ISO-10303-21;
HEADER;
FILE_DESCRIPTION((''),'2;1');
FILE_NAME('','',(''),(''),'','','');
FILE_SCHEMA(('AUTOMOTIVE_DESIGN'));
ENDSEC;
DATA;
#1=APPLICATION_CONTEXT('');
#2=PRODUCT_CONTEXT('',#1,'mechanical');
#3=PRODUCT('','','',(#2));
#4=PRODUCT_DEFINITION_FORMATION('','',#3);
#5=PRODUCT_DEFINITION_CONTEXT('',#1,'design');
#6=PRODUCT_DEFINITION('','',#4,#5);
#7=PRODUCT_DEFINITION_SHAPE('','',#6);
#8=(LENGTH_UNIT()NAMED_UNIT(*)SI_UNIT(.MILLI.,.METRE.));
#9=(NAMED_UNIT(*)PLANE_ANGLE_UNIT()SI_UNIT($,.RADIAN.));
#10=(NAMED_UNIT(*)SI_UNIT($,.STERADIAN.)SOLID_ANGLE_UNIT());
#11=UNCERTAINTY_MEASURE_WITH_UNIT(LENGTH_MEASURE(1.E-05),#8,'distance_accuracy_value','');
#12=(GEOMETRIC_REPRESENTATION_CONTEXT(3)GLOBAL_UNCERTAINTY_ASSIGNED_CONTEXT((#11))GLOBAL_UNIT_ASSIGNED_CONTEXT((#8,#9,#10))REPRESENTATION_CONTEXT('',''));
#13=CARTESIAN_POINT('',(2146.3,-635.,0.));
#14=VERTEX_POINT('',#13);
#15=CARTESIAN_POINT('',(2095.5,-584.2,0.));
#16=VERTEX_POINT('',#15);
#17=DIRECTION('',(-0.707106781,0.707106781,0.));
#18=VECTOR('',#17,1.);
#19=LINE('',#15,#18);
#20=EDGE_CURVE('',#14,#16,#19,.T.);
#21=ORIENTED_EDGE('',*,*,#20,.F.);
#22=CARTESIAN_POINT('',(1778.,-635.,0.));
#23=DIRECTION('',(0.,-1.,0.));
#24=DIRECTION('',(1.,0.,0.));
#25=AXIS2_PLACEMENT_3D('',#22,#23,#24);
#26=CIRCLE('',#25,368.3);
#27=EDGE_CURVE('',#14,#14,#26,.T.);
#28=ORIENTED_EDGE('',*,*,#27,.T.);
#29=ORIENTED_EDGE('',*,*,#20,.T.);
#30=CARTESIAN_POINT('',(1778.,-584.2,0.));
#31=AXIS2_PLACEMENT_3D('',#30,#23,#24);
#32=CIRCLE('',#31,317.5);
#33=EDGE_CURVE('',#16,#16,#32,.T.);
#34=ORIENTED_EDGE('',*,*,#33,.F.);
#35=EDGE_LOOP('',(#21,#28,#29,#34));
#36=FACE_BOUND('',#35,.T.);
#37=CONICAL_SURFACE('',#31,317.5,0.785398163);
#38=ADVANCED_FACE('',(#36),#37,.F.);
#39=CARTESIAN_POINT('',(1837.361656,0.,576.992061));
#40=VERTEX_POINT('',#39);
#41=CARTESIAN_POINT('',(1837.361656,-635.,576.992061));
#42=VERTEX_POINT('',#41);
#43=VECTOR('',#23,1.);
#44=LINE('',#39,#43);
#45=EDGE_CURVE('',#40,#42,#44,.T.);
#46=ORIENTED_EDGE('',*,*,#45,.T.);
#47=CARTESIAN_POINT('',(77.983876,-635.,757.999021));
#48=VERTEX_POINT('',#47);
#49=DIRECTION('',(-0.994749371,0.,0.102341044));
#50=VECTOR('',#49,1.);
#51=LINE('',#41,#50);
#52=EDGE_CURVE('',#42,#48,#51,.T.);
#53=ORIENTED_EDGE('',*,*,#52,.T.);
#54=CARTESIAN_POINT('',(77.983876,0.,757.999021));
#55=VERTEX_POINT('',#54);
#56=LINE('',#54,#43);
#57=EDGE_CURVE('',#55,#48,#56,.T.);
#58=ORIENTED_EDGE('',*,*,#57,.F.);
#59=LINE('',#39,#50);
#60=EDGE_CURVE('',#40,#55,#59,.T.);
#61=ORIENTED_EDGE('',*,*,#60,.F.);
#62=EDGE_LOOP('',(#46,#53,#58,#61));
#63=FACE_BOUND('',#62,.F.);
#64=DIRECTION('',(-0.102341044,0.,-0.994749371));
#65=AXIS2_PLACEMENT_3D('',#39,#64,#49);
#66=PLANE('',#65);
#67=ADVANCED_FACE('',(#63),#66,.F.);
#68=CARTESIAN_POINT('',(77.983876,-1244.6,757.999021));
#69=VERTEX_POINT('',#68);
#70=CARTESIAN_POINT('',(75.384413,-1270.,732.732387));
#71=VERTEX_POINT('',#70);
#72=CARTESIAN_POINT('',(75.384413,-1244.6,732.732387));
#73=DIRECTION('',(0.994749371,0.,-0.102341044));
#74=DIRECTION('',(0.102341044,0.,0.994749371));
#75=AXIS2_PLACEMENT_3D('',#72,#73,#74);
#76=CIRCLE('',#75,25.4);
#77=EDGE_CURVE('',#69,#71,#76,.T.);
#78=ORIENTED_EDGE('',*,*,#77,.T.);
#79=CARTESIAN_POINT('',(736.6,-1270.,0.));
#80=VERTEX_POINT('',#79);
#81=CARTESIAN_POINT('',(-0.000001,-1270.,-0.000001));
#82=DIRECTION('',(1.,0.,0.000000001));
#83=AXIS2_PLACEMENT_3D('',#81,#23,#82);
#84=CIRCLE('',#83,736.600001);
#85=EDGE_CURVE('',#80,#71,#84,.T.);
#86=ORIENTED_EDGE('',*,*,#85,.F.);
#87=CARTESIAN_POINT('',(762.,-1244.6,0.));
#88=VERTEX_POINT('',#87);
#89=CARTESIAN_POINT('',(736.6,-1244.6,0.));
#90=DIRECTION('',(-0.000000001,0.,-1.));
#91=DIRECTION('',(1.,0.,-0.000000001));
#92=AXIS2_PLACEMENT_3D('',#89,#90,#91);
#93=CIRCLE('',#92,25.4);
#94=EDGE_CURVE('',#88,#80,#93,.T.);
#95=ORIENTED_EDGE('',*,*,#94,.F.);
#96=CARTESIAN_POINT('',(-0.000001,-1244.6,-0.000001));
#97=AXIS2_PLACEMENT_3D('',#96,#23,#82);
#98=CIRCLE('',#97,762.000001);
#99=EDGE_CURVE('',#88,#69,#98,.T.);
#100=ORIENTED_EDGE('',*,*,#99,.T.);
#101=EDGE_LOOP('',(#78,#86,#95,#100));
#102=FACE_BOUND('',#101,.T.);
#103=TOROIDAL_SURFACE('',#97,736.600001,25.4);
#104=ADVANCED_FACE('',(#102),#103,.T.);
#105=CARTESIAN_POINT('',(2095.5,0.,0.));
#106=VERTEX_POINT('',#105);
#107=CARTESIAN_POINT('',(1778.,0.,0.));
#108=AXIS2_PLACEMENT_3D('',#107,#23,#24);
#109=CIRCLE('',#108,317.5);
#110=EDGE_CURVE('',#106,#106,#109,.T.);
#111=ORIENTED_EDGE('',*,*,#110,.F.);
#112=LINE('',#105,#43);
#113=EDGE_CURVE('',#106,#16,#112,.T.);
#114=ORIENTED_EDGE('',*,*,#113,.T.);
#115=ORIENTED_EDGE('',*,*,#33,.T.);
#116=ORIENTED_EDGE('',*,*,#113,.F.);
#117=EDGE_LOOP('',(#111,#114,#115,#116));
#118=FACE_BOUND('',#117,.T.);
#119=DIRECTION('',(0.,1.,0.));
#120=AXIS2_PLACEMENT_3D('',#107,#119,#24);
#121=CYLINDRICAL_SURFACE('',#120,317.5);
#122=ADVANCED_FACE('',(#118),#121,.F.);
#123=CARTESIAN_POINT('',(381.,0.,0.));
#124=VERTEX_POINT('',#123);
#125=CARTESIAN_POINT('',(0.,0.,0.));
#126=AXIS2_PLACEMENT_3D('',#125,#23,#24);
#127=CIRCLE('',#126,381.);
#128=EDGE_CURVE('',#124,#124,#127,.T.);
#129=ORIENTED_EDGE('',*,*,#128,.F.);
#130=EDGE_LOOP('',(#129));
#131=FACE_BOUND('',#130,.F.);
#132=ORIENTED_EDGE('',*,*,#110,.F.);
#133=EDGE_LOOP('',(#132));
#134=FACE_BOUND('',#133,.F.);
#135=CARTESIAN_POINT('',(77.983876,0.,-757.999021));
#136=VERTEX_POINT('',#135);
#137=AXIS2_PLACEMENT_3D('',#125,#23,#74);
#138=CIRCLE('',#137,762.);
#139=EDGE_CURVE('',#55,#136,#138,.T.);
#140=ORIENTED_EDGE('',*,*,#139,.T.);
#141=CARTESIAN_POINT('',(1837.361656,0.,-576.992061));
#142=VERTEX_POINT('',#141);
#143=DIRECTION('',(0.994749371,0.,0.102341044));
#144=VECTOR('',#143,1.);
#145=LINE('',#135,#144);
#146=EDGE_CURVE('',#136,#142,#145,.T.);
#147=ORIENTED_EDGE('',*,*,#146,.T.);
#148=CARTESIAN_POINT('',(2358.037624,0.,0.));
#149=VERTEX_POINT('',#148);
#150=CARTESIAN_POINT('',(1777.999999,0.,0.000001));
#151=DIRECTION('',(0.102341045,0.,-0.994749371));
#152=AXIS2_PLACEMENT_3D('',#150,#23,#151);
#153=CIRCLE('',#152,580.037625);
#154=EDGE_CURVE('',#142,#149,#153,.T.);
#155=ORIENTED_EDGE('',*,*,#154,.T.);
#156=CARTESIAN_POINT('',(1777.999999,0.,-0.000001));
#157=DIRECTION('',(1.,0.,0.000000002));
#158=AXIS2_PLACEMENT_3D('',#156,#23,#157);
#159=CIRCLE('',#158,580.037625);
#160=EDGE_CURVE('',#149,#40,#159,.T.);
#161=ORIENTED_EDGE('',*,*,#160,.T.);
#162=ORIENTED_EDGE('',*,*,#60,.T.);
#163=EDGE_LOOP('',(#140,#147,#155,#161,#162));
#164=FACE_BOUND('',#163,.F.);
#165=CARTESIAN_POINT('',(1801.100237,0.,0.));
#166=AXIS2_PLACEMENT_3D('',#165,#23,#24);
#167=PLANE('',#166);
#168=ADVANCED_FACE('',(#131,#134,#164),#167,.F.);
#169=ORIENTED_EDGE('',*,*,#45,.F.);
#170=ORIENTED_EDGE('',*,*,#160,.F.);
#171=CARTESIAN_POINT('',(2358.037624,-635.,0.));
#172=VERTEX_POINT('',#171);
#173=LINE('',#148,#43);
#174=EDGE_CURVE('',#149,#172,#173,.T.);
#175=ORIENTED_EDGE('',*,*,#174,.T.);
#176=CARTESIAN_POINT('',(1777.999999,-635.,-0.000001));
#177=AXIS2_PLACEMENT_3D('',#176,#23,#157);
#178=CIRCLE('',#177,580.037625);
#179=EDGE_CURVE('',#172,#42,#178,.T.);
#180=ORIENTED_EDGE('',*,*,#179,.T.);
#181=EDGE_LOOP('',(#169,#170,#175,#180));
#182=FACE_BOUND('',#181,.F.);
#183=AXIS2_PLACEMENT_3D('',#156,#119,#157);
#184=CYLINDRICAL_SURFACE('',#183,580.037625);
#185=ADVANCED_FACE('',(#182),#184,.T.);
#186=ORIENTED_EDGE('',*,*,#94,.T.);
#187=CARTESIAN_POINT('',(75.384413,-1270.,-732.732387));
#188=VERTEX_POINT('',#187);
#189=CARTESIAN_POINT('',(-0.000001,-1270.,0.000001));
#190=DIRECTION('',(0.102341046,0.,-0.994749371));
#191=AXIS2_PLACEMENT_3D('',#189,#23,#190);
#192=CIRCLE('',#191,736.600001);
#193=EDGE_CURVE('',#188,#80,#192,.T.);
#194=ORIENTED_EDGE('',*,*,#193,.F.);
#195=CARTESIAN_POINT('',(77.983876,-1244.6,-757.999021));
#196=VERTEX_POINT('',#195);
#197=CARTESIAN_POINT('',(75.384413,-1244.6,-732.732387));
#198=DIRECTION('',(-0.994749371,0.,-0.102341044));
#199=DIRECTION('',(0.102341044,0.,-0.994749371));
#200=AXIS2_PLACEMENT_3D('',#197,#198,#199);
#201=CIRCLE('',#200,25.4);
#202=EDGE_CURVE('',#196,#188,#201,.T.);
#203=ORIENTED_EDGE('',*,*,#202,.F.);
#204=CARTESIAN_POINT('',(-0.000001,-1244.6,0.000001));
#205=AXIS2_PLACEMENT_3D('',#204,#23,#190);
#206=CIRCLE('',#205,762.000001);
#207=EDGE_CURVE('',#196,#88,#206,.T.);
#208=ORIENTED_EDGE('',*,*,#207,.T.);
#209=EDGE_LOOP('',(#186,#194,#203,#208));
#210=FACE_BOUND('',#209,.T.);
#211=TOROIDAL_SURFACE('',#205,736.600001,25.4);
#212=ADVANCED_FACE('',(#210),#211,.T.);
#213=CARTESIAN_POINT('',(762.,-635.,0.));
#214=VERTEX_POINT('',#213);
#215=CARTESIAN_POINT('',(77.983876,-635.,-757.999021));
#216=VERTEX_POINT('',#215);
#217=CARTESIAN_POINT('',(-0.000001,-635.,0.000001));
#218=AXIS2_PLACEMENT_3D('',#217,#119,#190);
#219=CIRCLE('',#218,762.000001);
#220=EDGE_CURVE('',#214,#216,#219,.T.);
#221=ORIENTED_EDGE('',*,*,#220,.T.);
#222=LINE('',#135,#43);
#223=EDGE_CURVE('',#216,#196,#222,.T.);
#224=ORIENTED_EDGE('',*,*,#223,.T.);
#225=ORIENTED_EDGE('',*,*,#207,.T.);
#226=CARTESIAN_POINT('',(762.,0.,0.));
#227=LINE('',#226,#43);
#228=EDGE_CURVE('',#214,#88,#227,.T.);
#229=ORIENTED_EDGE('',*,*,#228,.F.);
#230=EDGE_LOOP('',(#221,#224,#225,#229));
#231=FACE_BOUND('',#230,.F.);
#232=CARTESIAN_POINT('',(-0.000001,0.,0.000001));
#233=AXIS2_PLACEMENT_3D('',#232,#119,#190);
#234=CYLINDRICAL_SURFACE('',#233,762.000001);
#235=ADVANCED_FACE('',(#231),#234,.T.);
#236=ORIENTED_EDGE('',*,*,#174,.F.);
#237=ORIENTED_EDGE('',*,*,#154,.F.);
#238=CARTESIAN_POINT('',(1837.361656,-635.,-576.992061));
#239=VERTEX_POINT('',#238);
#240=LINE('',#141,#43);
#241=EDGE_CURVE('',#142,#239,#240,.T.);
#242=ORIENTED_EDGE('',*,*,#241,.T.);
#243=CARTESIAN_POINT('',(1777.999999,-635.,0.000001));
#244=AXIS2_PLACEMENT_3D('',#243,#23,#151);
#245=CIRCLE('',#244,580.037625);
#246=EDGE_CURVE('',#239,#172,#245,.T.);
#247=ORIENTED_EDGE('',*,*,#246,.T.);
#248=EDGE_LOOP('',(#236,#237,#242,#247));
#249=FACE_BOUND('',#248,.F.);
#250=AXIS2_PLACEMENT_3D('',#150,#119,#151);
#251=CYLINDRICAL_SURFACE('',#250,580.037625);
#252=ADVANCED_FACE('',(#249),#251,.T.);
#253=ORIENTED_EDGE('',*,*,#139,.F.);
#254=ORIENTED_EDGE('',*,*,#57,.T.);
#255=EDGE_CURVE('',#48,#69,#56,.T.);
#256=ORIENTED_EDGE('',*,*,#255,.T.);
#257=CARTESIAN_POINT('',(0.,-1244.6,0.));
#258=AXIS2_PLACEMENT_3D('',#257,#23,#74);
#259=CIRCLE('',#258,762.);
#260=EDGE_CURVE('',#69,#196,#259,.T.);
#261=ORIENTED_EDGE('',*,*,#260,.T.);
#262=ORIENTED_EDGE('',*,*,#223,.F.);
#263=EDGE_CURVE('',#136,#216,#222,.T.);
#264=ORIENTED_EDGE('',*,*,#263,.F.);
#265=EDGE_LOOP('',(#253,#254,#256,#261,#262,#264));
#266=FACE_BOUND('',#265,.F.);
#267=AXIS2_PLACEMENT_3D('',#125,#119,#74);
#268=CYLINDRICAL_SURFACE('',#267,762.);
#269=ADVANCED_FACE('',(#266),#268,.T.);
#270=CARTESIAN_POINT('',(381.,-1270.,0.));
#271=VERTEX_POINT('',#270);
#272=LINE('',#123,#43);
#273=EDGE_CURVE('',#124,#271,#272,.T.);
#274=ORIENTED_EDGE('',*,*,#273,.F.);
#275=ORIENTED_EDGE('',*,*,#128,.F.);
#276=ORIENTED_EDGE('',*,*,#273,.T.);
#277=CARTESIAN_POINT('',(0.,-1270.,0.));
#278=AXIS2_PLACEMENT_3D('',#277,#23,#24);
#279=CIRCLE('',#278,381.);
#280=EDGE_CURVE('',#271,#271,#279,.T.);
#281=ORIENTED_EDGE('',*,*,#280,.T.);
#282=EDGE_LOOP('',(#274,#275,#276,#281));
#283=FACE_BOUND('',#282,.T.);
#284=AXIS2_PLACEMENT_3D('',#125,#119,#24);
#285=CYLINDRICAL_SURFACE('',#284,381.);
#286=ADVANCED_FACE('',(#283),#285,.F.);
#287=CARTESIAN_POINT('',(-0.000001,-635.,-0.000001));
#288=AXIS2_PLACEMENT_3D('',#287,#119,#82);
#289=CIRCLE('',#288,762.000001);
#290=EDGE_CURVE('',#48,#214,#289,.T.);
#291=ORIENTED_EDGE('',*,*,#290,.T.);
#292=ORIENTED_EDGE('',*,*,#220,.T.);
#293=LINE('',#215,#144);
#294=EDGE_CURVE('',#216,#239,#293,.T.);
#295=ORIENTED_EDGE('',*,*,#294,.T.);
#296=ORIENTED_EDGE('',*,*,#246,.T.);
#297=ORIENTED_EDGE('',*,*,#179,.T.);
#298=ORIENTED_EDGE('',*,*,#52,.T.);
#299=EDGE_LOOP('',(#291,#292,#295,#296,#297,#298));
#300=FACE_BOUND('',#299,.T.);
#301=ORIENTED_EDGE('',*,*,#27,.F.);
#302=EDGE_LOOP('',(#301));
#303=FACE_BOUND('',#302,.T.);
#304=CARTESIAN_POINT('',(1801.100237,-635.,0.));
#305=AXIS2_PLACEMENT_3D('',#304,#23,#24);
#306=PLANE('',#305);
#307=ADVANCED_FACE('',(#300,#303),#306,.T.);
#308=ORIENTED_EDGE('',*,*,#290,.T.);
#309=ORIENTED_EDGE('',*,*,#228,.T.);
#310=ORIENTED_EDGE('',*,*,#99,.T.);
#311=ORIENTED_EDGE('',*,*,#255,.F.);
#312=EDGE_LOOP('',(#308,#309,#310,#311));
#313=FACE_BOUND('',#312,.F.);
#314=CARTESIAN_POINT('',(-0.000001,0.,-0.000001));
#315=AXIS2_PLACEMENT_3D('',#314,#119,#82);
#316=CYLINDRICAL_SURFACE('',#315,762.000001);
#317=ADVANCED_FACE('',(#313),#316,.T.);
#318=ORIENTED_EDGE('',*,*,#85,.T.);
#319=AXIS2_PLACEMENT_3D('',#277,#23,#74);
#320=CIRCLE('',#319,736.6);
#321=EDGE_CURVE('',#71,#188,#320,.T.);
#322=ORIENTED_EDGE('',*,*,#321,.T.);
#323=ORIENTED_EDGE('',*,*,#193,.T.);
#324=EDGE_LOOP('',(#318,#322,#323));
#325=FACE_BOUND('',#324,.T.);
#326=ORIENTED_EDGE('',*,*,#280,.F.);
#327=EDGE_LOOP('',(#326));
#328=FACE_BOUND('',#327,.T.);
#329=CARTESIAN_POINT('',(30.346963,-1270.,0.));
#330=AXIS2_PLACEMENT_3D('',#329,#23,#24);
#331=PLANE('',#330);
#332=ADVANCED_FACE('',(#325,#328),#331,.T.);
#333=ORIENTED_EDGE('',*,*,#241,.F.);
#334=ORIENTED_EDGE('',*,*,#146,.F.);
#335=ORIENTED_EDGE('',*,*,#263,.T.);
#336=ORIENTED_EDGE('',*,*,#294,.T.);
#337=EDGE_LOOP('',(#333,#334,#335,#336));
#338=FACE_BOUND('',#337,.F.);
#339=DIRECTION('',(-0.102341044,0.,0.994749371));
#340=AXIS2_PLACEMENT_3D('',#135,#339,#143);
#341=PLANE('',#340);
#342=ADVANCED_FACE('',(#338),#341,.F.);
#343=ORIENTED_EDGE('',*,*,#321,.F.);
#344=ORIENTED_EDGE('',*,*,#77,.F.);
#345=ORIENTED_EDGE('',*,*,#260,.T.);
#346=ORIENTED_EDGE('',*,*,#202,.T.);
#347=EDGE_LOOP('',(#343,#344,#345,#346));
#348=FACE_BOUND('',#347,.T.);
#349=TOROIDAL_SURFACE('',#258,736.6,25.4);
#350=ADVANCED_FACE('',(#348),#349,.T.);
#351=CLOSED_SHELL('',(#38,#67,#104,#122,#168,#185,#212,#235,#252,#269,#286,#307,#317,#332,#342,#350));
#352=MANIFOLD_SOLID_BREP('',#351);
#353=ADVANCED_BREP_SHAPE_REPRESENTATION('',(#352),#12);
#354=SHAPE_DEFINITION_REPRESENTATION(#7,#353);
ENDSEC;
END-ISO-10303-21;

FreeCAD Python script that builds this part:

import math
import FreeCAD as App
import Part
import Sketcher
from FreeCAD import Vector
Q = App.Units.Quantity


def edges_at(feature, points):
    """Names of the edges that pass closest to the given points."""
    edges = feature.Shape.Edges
    near = lambda p: min(range(len(edges)), key=lambda i: edges[i].distToShape(Part.Vertex(*p))[0])
    return sorted({f"Edge{near(p) + 1}" for p in points})

doc = App.newDocument("Part")
body = doc.addObject("PartDesign::Body", "Body")

# Sketch on XZ plane
sketch1 = body.newObject("Sketcher::SketchObject", "Sketch")
sketch1.AttachmentSupport = (doc.getObject("XZ_Plane"), [""])
sketch1.MapMode = "FlatFace"
sketch1.addGeometry(Part.ArcOfCircle(Part.Circle(Vector(1777.999999, -0.000001, 0), Vector(0, 0, 1), 580.037625), math.radians(0), math.radians(84.126006)), False)
sketch1.addGeometry(Part.LineSegment(Vector(1837.361656, 576.992061, 0), Vector(77.983876, 757.999021, 0)), False)
sketch1.addGeometry(Part.ArcOfCircle(Part.Circle(Vector(0, 0, 0), Vector(0, 0, 1), 762), math.radians(84.126006), math.radians(275.873994)), False)
sketch1.addGeometry(Part.LineSegment(Vector(77.983876, -757.999021, 0), Vector(1837.361656, -576.992061, 0)), False)
sketch1.addGeometry(Part.ArcOfCircle(Part.Circle(Vector(1777.999999, 0.000001, 0), Vector(0, 0, 1), 580.037625), math.radians(-84.126006), math.radians(0)), False)
sketch1.addGeometry(Part.Circle(Vector(1778, 0, 0), Vector(0, 0, 1), 317.5), False)
sketch1.addGeometry(Part.Circle(Vector(0, 0, 0), Vector(0, 0, 1), 381), False)
sketch1.addConstraint(Sketcher.Constraint("Tangent", 0, 2, 1, 1))
sketch1.addConstraint(Sketcher.Constraint("Coincident", 1, 2, 2, 1))
sketch1.addConstraint(Sketcher.Constraint("Coincident", 2, 2, 3, 1))
sketch1.addConstraint(Sketcher.Constraint("Tangent", 3, 2, 4, 1))
sketch1.addConstraint(Sketcher.Constraint("Coincident", 4, 2, 0, 1))
sketch1.addConstraint(Sketcher.Constraint("Coincident", 2, 3, -1, 1))
sketch1.addConstraint(Sketcher.Constraint("Coincident", 6, 3, -1, 1))
sketch1.addConstraint(Sketcher.Constraint("Coincident", 4, 3, 0, 3))
sketch1.addConstraint(Sketcher.Constraint("Coincident", 5, 3, 0, 3))
sketch1.addConstraint(Sketcher.Constraint("PointOnObject", 0, 3, -1))
sketch1.addConstraint(Sketcher.Constraint("PointOnObject", 4, 2, -1))
sketch1.addConstraint(Sketcher.Constraint("Equal", 1, 3))
sketch1.addConstraint(Sketcher.Constraint("Diameter", 5, Q("25 in")))
sketch1.addConstraint(Sketcher.Constraint("Diameter", 6, Q("30 in")))
sketch1.addConstraint(Sketcher.Constraint("Radius", 2, Q("30 in")))
sketch1.addConstraint(Sketcher.Constraint("DistanceX", -1, 1, 0, 3, Q("70 in")))
sketch1.addConstraint(Sketcher.Constraint("Radius", 0, Q("580.037625 mm")))
sketch1.addConstraint(Sketcher.Constraint("Distance", 1, Q("1768.664381 mm")))
pad1 = body.newObject("PartDesign::Pad", "Pad")
pad1.Profile = sketch1
pad1.Length = Q("25 in")

# Sketch on XZ plane
sketch2 = body.newObject("Sketcher::SketchObject", "Sketch001")
sketch2.AttachmentSupport = (doc.getObject("XZ_Plane"), [""])
sketch2.MapMode = "FlatFace"
sketch2.addGeometry(Part.ArcOfCircle(Part.Circle(Vector(-0.000001, 0.000001, 0), Vector(0, 0, 1), 762.000001), math.radians(-84.126006), math.radians(0)), False)
sketch2.addGeometry(Part.ArcOfCircle(Part.Circle(Vector(-0.000001, -0.000001, 0), Vector(0, 0, 1), 762.000001), math.radians(0), math.radians(84.126006)), False)
sketch2.addGeometry(Part.ArcOfCircle(Part.Circle(Vector(0, 0, 0), Vector(0, 0, 1), 762), math.radians(84.126006), math.radians(275.873994)), False)
sketch2.addGeometry(Part.Circle(Vector(0, 0, 0), Vector(0, 0, 1), 381), False)
sketch2.addConstraint(Sketcher.Constraint("Coincident", 0, 2, 1, 1))
sketch2.addConstraint(Sketcher.Constraint("Coincident", 1, 2, 2, 1))
sketch2.addConstraint(Sketcher.Constraint("Coincident", 2, 2, 0, 1))
sketch2.addConstraint(Sketcher.Constraint("Coincident", 0, 3, -1, 1))
sketch2.addConstraint(Sketcher.Constraint("Coincident", 1, 3, -1, 1))
sketch2.addConstraint(Sketcher.Constraint("Coincident", 3, 3, -1, 1))
sketch2.addConstraint(Sketcher.Constraint("Equal", 1, 2))
sketch2.addConstraint(Sketcher.Constraint("PointOnObject", 0, 2, -1))
sketch2.addConstraint(Sketcher.Constraint("Vertical", 1, 2, 2, 2))
sketch2.addConstraint(Sketcher.Constraint("Diameter", 3, Q("30 in")))
sketch2.addConstraint(Sketcher.Constraint("Radius", 0, Q("30 in")))
sketch2.addConstraint(Sketcher.Constraint("DistanceY", -1, 1, 1, 2, Q("757.999021 mm")))
pad2 = body.newObject("PartDesign::Pad", "Pad001")
pad2.Profile = sketch2
pad2.Length = Q("50 in")
doc.recompute()

fillet = body.newObject("PartDesign::Fillet", "Fillet")
fillet.Base = (pad2, edges_at(pad2, [(-762, -1270, 0)]))
fillet.Radius = Q("1 in")
doc.recompute()

chamfer = body.newObject("PartDesign::Chamfer", "Chamfer")
chamfer.Base = (fillet, edges_at(fillet, [(1460.5, -635, 0)]))
chamfer.Size = Q("2 in")

doc.recompute()
